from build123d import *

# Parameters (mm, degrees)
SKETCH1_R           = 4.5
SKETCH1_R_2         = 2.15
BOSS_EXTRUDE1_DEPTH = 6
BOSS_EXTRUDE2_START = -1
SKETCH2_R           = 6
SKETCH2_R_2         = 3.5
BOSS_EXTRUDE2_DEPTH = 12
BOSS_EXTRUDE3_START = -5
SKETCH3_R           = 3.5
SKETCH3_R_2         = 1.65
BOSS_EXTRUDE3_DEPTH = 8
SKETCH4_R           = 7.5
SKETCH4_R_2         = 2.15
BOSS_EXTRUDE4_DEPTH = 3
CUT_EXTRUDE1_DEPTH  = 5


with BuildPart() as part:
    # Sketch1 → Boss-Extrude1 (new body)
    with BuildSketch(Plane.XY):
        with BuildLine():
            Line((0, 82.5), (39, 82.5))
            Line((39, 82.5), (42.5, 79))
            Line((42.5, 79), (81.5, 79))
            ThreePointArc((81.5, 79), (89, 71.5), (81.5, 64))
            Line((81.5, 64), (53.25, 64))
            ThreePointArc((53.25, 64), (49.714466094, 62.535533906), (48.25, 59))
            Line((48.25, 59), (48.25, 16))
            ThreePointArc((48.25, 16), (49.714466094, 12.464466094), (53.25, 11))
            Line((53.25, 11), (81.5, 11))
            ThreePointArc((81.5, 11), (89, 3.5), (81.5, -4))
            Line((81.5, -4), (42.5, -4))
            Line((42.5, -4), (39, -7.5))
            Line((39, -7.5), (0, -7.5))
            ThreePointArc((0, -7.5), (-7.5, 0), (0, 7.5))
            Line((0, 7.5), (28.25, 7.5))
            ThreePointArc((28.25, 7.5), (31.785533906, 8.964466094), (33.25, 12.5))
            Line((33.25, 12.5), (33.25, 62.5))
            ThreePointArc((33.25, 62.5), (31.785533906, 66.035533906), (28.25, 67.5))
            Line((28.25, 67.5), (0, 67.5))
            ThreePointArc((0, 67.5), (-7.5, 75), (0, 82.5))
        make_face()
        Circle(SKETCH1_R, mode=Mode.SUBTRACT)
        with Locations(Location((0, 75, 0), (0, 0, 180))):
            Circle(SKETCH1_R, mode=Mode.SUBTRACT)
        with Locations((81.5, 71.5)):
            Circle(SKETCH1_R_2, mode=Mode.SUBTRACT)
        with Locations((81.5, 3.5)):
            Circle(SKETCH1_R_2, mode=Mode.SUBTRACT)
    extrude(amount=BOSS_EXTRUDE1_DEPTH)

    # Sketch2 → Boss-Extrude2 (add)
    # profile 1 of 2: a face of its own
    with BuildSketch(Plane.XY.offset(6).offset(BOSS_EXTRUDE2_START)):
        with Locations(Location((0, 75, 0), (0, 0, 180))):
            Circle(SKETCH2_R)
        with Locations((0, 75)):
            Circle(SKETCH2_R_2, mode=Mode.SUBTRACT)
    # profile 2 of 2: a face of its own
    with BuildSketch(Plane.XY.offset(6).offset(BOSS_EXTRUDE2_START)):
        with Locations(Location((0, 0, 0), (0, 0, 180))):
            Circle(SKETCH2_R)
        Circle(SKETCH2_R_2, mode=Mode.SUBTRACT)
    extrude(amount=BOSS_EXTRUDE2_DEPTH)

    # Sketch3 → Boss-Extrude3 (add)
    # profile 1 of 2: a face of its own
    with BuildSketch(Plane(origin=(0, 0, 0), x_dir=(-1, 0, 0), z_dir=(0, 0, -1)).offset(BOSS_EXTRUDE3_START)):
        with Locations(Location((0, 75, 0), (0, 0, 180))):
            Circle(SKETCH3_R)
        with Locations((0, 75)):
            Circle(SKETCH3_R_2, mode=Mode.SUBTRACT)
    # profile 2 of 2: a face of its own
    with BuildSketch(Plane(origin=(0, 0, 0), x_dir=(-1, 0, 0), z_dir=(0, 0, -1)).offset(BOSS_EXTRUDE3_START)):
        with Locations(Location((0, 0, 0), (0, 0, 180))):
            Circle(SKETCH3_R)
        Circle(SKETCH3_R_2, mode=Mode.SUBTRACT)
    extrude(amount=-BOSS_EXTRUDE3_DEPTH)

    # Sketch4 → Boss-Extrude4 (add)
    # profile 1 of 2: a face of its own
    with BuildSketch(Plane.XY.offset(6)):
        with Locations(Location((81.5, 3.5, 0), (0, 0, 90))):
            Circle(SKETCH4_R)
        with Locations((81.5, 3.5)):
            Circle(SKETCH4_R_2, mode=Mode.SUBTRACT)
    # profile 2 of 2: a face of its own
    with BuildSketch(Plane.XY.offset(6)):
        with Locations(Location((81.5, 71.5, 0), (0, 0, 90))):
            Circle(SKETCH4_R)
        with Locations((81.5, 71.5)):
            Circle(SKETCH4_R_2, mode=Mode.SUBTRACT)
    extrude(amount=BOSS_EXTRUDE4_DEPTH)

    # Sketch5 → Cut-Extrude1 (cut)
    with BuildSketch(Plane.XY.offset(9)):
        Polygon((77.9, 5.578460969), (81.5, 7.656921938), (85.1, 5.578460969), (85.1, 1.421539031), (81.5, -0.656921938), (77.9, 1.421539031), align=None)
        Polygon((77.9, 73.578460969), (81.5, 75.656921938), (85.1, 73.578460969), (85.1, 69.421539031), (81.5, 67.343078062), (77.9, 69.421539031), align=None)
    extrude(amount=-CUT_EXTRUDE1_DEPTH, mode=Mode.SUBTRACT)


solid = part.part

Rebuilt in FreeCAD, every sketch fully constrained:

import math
import FreeCAD as App
import Part
import Sketcher
from FreeCAD import Vector
Q = App.Units.Quantity

doc = App.newDocument("Part")
body = doc.addObject("PartDesign::Body", "Body")

# Sketch on XY plane
sketch1 = body.newObject("Sketcher::SketchObject", "Sketch")
sketch1.AttachmentSupport = (doc.getObject("XY_Plane"), [""])
sketch1.MapMode = "FlatFace"
sketch1.addGeometry(Part.LineSegment(Vector(39, 82.5, 0), Vector(0, 82.5, 0)), False)
sketch1.addGeometry(Part.ArcOfCircle(Part.Circle(Vector(0, 75, 0), Vector(0, 0, 1), 7.5), math.radians(90), math.radians(270)), False)
sketch1.addGeometry(Part.LineSegment(Vector(0, 67.5, 0), Vector(28.2, 67.5, 0)), False)
sketch1.addGeometry(Part.ArcOfCircle(Part.Circle(Vector(28.2, 62.5, 0), Vector(0, 0, 1), 5), math.radians(0), math.radians(90)), False)
sketch1.addGeometry(Part.LineSegment(Vector(33.2, 62.5, 0), Vector(33.2, 12.5, 0)), False)
sketch1.addGeometry(Part.ArcOfCircle(Part.Circle(Vector(28.2, 12.5, 0), Vector(0, 0, 1), 5), math.radians(-90), math.radians(0)), False)
sketch1.addGeometry(Part.LineSegment(Vector(28.2, 7.5, 0), Vector(0, 7.5, 0)), False)
sketch1.addGeometry(Part.ArcOfCircle(Part.Circle(Vector(0, 0, 0), Vector(0, 0, 1), 7.5), math.radians(90), math.radians(270)), False)
sketch1.addGeometry(Part.LineSegment(Vector(0, -7.5, 0), Vector(39, -7.5, 0)), False)
sketch1.addGeometry(Part.LineSegment(Vector(39, -7.5, 0), Vector(42.5, -4, 0)), False)
sketch1.addGeometry(Part.LineSegment(Vector(42.5, -4, 0), Vector(81.5, -4, 0)), False)
sketch1.addGeometry(Part.ArcOfCircle(Part.Circle(Vector(81.5, 3.5, 0), Vector(0, 0, 1), 7.5), math.radians(-90), math.radians(90)), False)
sketch1.addGeometry(Part.LineSegment(Vector(81.5, 11, 0), Vector(53.2, 11, 0)), False)
sketch1.addGeometry(Part.ArcOfCircle(Part.Circle(Vector(53.2, 16, 0), Vector(0, 0, 1), 5), math.radians(180), math.radians(270)), False)
sketch1.addGeometry(Part.LineSegment(Vector(48.2, 16, 0), Vector(48.2, 59, 0)), False)
sketch1.addGeometry(Part.ArcOfCircle(Part.Circle(Vector(53.2, 59, 0), Vector(0, 0, 1), 5), math.radians(90), math.radians(180)), False)
sketch1.addGeometry(Part.LineSegment(Vector(53.2, 64, 0), Vector(81.5, 64, 0)), False)
sketch1.addGeometry(Part.ArcOfCircle(Part.Circle(Vector(81.5, 71.5, 0), Vector(0, 0, 1), 7.5), math.radians(-90), math.radians(90)), False)
sketch1.addGeometry(Part.LineSegment(Vector(81.5, 79, 0), Vector(42.5, 79, 0)), False)
sketch1.addGeometry(Part.LineSegment(Vector(42.5, 79, 0), Vector(39, 82.5, 0)), False)
sketch1.addGeometry(Part.Circle(Vector(81.5, 3.5, 0), Vector(0, 0, 1), 2.1), False)
sketch1.addGeometry(Part.Circle(Vector(0, 0, 0), Vector(0, 0, 1), 4.5), False)
sketch1.addGeometry(Part.Circle(Vector(81.5, 71.5, 0), Vector(0, 0, 1), 2.1), False)
sketch1.addGeometry(Part.Circle(Vector(0, 75, 0), Vector(0, 0, 1), 4.5), False)
sketch1.addConstraint(Sketcher.Constraint("Tangent", 0, 2, 1, 1))
sketch1.addConstraint(Sketcher.Constraint("Tangent", 1, 2, 2, 1))
sketch1.addConstraint(Sketcher.Constraint("Tangent", 2, 2, 3, 2))
sketch1.addConstraint(Sketcher.Constraint("Tangent", 3, 1, 4, 1))
sketch1.addConstraint(Sketcher.Constraint("Tangent", 4, 2, 5, 2))
sketch1.addConstraint(Sketcher.Constraint("Tangent", 5, 1, 6, 1))
sketch1.addConstraint(Sketcher.Constraint("Tangent", 6, 2, 7, 1))
sketch1.addConstraint(Sketcher.Constraint("Tangent", 7, 2, 8, 1))
sketch1.addConstraint(Sketcher.Constraint("Coincident", 8, 2, 9, 1))
sketch1.addConstraint(Sketcher.Constraint("Coincident", 9, 2, 10, 1))
sketch1.addConstraint(Sketcher.Constraint("Tangent", 10, 2, 11, 1))
sketch1.addConstraint(Sketcher.Constraint("Tangent", 11, 2, 12, 1))
sketch1.addConstraint(Sketcher.Constraint("Tangent", 12, 2, 13, 2))
sketch1.addConstraint(Sketcher.Constraint("Tangent", 13, 1, 14, 1))
sketch1.addConstraint(Sketcher.Constraint("Tangent", 14, 2, 15, 2))
sketch1.addConstraint(Sketcher.Constraint("Tangent", 15, 1, 16, 1))
sketch1.addConstraint(Sketcher.Constraint("Tangent", 16, 2, 17, 1))
sketch1.addConstraint(Sketcher.Constraint("Tangent", 17, 2, 18, 1))
sketch1.addConstraint(Sketcher.Constraint("Coincident", 18, 2, 19, 1))
sketch1.addConstraint(Sketcher.Constraint("Coincident", 19, 2, 0, 1))
sketch1.addConstraint(Sketcher.Constraint("Horizontal", 0))
sketch1.addConstraint(Sketcher.Constraint("Horizontal", 2))
sketch1.addConstraint(Sketcher.Constraint("Vertical", 4))
sketch1.addConstraint(Sketcher.Constraint("Horizontal", 6))
sketch1.addConstraint(Sketcher.Constraint("Horizontal", 8))
sketch1.addConstraint(Sketcher.Constraint("Horizontal", 10))
sketch1.addConstraint(Sketcher.Constraint("Horizontal", 12))
sketch1.addConstraint(Sketcher.Constraint("Vertical", 14))
sketch1.addConstraint(Sketcher.Constraint("Horizontal", 16))
sketch1.addConstraint(Sketcher.Constraint("Horizontal", 18))
sketch1.addConstraint(Sketcher.Constraint("Coincident", 7, 3, -1, 1))
sketch1.addConstraint(Sketcher.Constraint("Coincident", 21, 3, -1, 1))
sketch1.addConstraint(Sketcher.Constraint("Coincident", 20, 3, 11, 3))
sketch1.addConstraint(Sketcher.Constraint("Coincident", 22, 3, 17, 3))
sketch1.addConstraint(Sketcher.Constraint("Coincident", 23, 3, 1, 3))
sketch1.addConstraint(Sketcher.Constraint("Equal", 3, 5))
sketch1.addConstraint(Sketcher.Constraint("Equal", 1, 7))
sketch1.addConstraint(Sketcher.Constraint("Equal", 7, 11))
sketch1.addConstraint(Sketcher.Constraint("Equal", 5, 13))
sketch1.addConstraint(Sketcher.Constraint("Equal", 13, 15))
sketch1.addConstraint(Sketcher.Constraint("Equal", 11, 17))
sketch1.addConstraint(Sketcher.Constraint("Equal", 20, 22))
sketch1.addConstraint(Sketcher.Constraint("Equal", 21, 23))
sketch1.addConstraint(Sketcher.Constraint("PointOnObject", 1, 3, -2))
sketch1.addConstraint(Sketcher.Constraint("Perpendicular", 9, 19))
sketch1.addConstraint(Sketcher.Constraint("Vertical", 11, 3, 17, 3))
sketch1.addConstraint(Sketcher.Constraint("Vertical", 9, 2, 18, 2))
sketch1.addConstraint(Sketcher.Constraint("Vertical", 8, 2, 19, 2))
sketch1.addConstraint(Sketcher.Constraint("Equal", 8, 10))
sketch1.addConstraint(Sketcher.Constraint("Equal", 6, 12))
sketch1.addConstraint(Sketcher.Constraint("Equal", 9, 19))
sketch1.addConstraint(Sketcher.Constraint("Diameter", 21, 9.0))
sketch1.addConstraint(Sketcher.Constraint("Radius", 3, 5.0))
sketch1.addConstraint(Sketcher.Constraint("Diameter", 20, 4.3))
sketch1.addConstraint(Sketcher.Constraint("Radius", 1, 7.5))
sketch1.addConstraint(Sketcher.Constraint("DistanceX", 0, 2, 0, 1, 39.0))
sketch1.addConstraint(Sketcher.Constraint("DistanceY", 4, 2, 4, 1, 50.0))
sketch1.addConstraint(Sketcher.Constraint("DistanceY", 14, 1, 14, 2, 43.0))
sketch1.addConstraint(Sketcher.Constraint("DistanceX", 5, 3, 13, 3, 25.0))
pad1 = body.newObject("PartDesign::Pad", "Pad")
pad1.Profile = sketch1
pad1.Length = 6

# Sketch on XY plane
sketch2 = body.newObject("Sketcher::SketchObject", "Sketch001")
sketch2.AttachmentSupport = (doc.getObject("XY_Plane"), [""])
sketch2.MapMode = "FlatFace"
sketch2.AttachmentOffset = App.Placement(Vector(0, 0, 5), App.Rotation())
sketch2.addGeometry(Part.Circle(Vector(0, 75, 0), Vector(0, 0, 1), 6), False)
sketch2.addGeometry(Part.Circle(Vector(0, 75, 0), Vector(0, 0, 1), 3.5), False)
sketch2.addGeometry(Part.Circle(Vector(0, 0, 0), Vector(0, 0, 1), 6), False)
sketch2.addGeometry(Part.Circle(Vector(0, 0, 0), Vector(0, 0, 1), 3.5), False)
sketch2.addConstraint(Sketcher.Constraint("Coincident", 2, 3, -1, 1))
sketch2.addConstraint(Sketcher.Constraint("Coincident", 3, 3, -1, 1))
sketch2.addConstraint(Sketcher.Constraint("Coincident", 1, 3, 0, 3))
sketch2.addConstraint(Sketcher.Constraint("Equal", 0, 2))
sketch2.addConstraint(Sketcher.Constraint("Equal", 1, 3))
sketch2.addConstraint(Sketcher.Constraint("PointOnObject", 0, 3, -2))
sketch2.addConstraint(Sketcher.Constraint("Diameter", 0, 12.0))
sketch2.addConstraint(Sketcher.Constraint("Diameter", 1, 7.0))
sketch2.addConstraint(Sketcher.Constraint("DistanceY", -1, 1, 0, 3, 75.0))
pad2 = body.newObject("PartDesign::Pad", "Pad001")
pad2.Profile = sketch2
pad2.Length = 12

# Sketch on XY plane
sketch3 = body.newObject("Sketcher::SketchObject", "Sketch002")
sketch3.AttachmentSupport = (doc.getObject("XY_Plane"), [""])
sketch3.MapMode = "FlatFace"
sketch3.AttachmentOffset = App.Placement(Vector(0, 0, 5), App.Rotation())
sketch3.addGeometry(Part.Circle(Vector(0, 75, 0), Vector(0, 0, 1), 3.5), False)
sketch3.addGeometry(Part.Circle(Vector(0, 75, 0), Vector(0, 0, 1), 1.6), False)
sketch3.addGeometry(Part.Circle(Vector(0, 0, 0), Vector(0, 0, 1), 3.5), False)
sketch3.addGeometry(Part.Circle(Vector(0, 0, 0), Vector(0, 0, 1), 1.6), False)
sketch3.addConstraint(Sketcher.Constraint("Coincident", 2, 3, -1, 1))
sketch3.addConstraint(Sketcher.Constraint("Coincident", 3, 3, -1, 1))
sketch3.addConstraint(Sketcher.Constraint("Coincident", 1, 3, 0, 3))
sketch3.addConstraint(Sketcher.Constraint("Equal", 0, 2))
sketch3.addConstraint(Sketcher.Constraint("Equal", 1, 3))
sketch3.addConstraint(Sketcher.Constraint("PointOnObject", 0, 3, -2))
sketch3.addConstraint(Sketcher.Constraint("Diameter", 0, 7.0))
sketch3.addConstraint(Sketcher.Constraint("Diameter", 1, 3.3))
sketch3.addConstraint(Sketcher.Constraint("DistanceY", -1, 1, 0, 3, 75.0))
pad3 = body.newObject("PartDesign::Pad", "Pad002")
pad3.Profile = sketch3
pad3.Length = 8

# Sketch on XY plane
sketch4 = body.newObject("Sketcher::SketchObject", "Sketch003")
sketch4.AttachmentSupport = (doc.getObject("XY_Plane"), [""])
sketch4.MapMode = "FlatFace"
sketch4.AttachmentOffset = App.Placement(Vector(0, 0, 6), App.Rotation())
sketch4.addGeometry(Part.Circle(Vector(81.5, 3.5, 0), Vector(0, 0, 1), 7.5), False)
sketch4.addGeometry(Part.Circle(Vector(81.5, 3.5, 0), Vector(0, 0, 1), 2.1), False)
sketch4.addGeometry(Part.Circle(Vector(81.5, 71.5, 0), Vector(0, 0, 1), 7.5), False)
sketch4.addGeometry(Part.Circle(Vector(81.5, 71.5, 0), Vector(0, 0, 1), 2.1), False)
sketch4.addConstraint(Sketcher.Constraint("Coincident", 1, 3, 0, 3))
sketch4.addConstraint(Sketcher.Constraint("Coincident", 3, 3, 2, 3))
sketch4.addConstraint(Sketcher.Constraint("Equal", 0, 2))
sketch4.addConstraint(Sketcher.Constraint("Equal", 1, 3))
sketch4.addConstraint(Sketcher.Constraint("Vertical", 1, 3, 2, 3))
sketch4.addConstraint(Sketcher.Constraint("Diameter", 0, 15.0))
sketch4.addConstraint(Sketcher.Constraint("Diameter", 1, 4.3))
sketch4.addConstraint(Sketcher.Constraint("DistanceY", 0, 3, 2, 3, 68.0))
sketch4.addConstraint(Sketcher.Constraint("DistanceX", -1, 1, 0, 3, 81.5))
sketch4.addConstraint(Sketcher.Constraint("DistanceY", -1, 1, 0, 3, 3.5))
pad4 = body.newObject("PartDesign::Pad", "Pad003")
pad4.Profile = sketch4
pad4.Length = 3

# Sketch on XY plane
sketch5 = body.newObject("Sketcher::SketchObject", "Sketch004")
sketch5.AttachmentSupport = (doc.getObject("XY_Plane"), [""])
sketch5.MapMode = "FlatFace"
sketch5.AttachmentOffset = App.Placement(Vector(0, 0, 9), App.Rotation())
sketch5.addGeometry(Part.LineSegment(Vector(81.5, 7.7, 0), Vector(77.9, 5.6, 0)), False)
sketch5.addGeometry(Part.LineSegment(Vector(77.9, 5.6, 0), Vector(77.9, 1.4, 0)), False)
sketch5.addGeometry(Part.LineSegment(Vector(77.9, 1.4, 0), Vector(81.5, -0.7, 0)), False)
sketch5.addGeometry(Part.LineSegment(Vector(81.5, -0.7, 0), Vector(85.1, 1.4, 0)), False)
sketch5.addGeometry(Part.LineSegment(Vector(85.1, 1.4, 0), Vector(85.1, 5.6, 0)), False)
sketch5.addGeometry(Part.LineSegment(Vector(85.1, 5.6, 0), Vector(81.5, 7.7, 0)), False)
sketch5.addGeometry(Part.LineSegment(Vector(81.5, 75.7, 0), Vector(77.9, 73.6, 0)), False)
sketch5.addGeometry(Part.LineSegment(Vector(77.9, 73.6, 0), Vector(77.9, 69.4, 0)), False)
sketch5.addGeometry(Part.LineSegment(Vector(77.9, 69.4, 0), Vector(81.5, 67.3, 0)), False)
sketch5.addGeometry(Part.LineSegment(Vector(81.5, 67.3, 0), Vector(85.1, 69.4, 0)), False)
sketch5.addGeometry(Part.LineSegment(Vector(85.1, 69.4, 0), Vector(85.1, 73.6, 0)), False)
sketch5.addGeometry(Part.LineSegment(Vector(85.1, 73.6, 0), Vector(81.5, 75.7, 0)), False)
sketch5.addConstraint(Sketcher.Constraint("Coincident", 0, 2, 1, 1))
sketch5.addConstraint(Sketcher.Constraint("Coincident", 1, 2, 2, 1))
sketch5.addConstraint(Sketcher.Constraint("Coincident", 2, 2, 3, 1))
sketch5.addConstraint(Sketcher.Constraint("Coincident", 3, 2, 4, 1))
sketch5.addConstraint(Sketcher.Constraint("Coincident", 4, 2, 5, 1))
sketch5.addConstraint(Sketcher.Constraint("Coincident", 5, 2, 0, 1))
sketch5.addConstraint(Sketcher.Constraint("Coincident", 6, 2, 7, 1))
sketch5.addConstraint(Sketcher.Constraint("Coincident", 7, 2, 8, 1))
sketch5.addConstraint(Sketcher.Constraint("Coincident", 8, 2, 9, 1))
sketch5.addConstraint(Sketcher.Constraint("Coincident", 9, 2, 10, 1))
sketch5.addConstraint(Sketcher.Constraint("Coincident", 10, 2, 11, 1))
sketch5.addConstraint(Sketcher.Constraint("Coincident", 11, 2, 6, 1))
sketch5.addConstraint(Sketcher.Constraint("Vertical", 1))
sketch5.addConstraint(Sketcher.Constraint("Vertical", 4))
sketch5.addConstraint(Sketcher.Constraint("Vertical", 7))
sketch5.addConstraint(Sketcher.Constraint("Vertical", 10))
sketch5.addConstraint(Sketcher.Constraint("Parallel", 0, 3))
sketch5.addConstraint(Sketcher.Constraint("Parallel", 2, 5))
sketch5.addConstraint(Sketcher.Constraint("Parallel", 3, 6))
sketch5.addConstraint(Sketcher.Constraint("Parallel", 5, 8))
sketch5.addConstraint(Sketcher.Constraint("Parallel", 6, 9))
sketch5.addConstraint(Sketcher.Constraint("Parallel", 8, 11))
sketch5.addConstraint(Sketcher.Constraint("Horizontal", 1, 2, 3, 2))
sketch5.addConstraint(Sketcher.Constraint("Horizontal", 0, 2, 4, 2))
sketch5.addConstraint(Sketcher.Constraint("Horizontal", 7, 2, 9, 2))
sketch5.addConstraint(Sketcher.Constraint("Horizontal", 6, 2, 10, 2))
sketch5.addConstraint(Sketcher.Constraint("Vertical", 2, 2, 5, 2))
sketch5.addConstraint(Sketcher.Constraint("Vertical", 1, 2, 6, 2))
sketch5.addConstraint(Sketcher.Constraint("Vertical", 5, 2, 8, 2))
sketch5.addConstraint(Sketcher.Constraint("Equal", 4, 7))
sketch5.addConstraint(Sketcher.Constraint("Angle", 0, Q("-150 deg")))
sketch5.addConstraint(Sketcher.Constraint("DistanceY", 0, 2, 6, 2, 68.0))
sketch5.addConstraint(Sketcher.Constraint("DistanceX", -1, 1, 0, 2, 77.9))
sketch5.addConstraint(Sketcher.Constraint("DistanceX", -1, 1, 2, 2, 81.5))
sketch5.addConstraint(Sketcher.Constraint("DistanceY", 1, 2, 1, 1, 4.156922))
sketch5.addConstraint(Sketcher.Constraint("DistanceY", -1, 1, 0, 2, 5.578461))
pocket1 = body.newObject("PartDesign::Pocket", "Pocket")
pocket1.Profile = sketch5
pocket1.Length = 5

doc.recompute()
